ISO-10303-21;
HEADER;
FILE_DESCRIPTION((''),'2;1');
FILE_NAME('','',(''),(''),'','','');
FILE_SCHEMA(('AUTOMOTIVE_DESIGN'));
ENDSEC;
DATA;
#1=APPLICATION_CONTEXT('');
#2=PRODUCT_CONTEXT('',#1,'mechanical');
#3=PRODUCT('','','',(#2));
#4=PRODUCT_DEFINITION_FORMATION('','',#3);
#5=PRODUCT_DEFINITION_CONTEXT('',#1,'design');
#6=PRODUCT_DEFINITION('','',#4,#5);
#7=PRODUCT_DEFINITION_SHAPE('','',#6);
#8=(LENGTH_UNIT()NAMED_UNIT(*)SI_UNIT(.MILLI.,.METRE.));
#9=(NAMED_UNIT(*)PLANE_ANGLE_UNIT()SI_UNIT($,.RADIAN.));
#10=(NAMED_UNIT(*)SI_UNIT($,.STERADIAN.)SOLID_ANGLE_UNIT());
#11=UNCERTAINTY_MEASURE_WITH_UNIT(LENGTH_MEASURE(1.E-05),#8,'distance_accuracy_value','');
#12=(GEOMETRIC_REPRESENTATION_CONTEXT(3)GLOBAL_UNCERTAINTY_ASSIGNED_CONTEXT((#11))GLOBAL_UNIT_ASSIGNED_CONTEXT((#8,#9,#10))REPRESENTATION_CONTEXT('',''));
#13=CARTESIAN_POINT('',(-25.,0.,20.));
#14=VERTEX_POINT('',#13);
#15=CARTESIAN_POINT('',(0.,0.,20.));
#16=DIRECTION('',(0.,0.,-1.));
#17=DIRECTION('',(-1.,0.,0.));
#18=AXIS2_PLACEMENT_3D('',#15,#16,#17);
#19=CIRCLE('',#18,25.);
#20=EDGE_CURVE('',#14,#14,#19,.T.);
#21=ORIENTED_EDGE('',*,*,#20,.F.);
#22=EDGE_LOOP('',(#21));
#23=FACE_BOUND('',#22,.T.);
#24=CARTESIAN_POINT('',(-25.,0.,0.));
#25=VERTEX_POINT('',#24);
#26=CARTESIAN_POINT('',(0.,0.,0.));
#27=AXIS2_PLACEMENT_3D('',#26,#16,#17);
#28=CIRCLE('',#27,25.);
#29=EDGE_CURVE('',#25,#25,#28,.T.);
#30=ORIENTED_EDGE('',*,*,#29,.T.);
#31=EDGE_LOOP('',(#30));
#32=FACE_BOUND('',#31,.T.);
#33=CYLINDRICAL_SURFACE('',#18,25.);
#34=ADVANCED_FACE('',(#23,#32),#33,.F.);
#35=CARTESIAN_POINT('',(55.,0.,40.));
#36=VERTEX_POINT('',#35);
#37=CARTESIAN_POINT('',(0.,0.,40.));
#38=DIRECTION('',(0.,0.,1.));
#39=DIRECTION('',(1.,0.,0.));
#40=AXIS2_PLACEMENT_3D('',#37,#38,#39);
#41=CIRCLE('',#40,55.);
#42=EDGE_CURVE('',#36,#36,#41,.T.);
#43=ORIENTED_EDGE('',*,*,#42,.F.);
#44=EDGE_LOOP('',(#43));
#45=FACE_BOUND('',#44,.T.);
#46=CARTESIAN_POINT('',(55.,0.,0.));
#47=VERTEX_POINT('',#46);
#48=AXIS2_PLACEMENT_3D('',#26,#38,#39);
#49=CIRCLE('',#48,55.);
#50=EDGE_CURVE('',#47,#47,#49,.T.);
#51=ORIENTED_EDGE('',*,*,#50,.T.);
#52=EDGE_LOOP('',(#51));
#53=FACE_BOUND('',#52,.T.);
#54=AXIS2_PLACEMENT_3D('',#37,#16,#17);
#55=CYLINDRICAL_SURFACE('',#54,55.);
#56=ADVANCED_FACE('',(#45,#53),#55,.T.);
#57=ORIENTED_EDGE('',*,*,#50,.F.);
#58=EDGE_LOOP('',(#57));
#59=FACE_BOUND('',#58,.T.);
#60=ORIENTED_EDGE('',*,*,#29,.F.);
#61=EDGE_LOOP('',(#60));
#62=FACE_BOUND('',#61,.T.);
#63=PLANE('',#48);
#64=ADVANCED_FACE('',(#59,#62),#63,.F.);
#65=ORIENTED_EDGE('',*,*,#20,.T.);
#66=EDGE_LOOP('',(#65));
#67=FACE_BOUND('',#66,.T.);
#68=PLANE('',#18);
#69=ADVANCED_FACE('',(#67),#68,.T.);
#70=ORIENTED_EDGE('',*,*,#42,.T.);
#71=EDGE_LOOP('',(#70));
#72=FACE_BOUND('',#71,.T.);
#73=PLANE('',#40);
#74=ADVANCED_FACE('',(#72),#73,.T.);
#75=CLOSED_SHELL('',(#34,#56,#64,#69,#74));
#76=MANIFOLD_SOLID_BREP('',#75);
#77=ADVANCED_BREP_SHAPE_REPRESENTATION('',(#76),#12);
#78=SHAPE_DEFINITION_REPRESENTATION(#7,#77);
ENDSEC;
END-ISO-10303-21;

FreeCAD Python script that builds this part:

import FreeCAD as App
import Part
import Sketcher
from FreeCAD import Vector
Q = App.Units.Quantity

doc = App.newDocument("Part")
body = doc.addObject("PartDesign::Body", "Body")

# Sketch on XY plane
sketch1 = body.newObject("Sketcher::SketchObject", "Sketch")
sketch1.AttachmentSupport = (doc.getObject("XY_Plane"), [""])
sketch1.MapMode = "FlatFace"
sketch1.addGeometry(Part.Circle(Vector(0, 0, 0), Vector(0, 0, 1), 55), False)
sketch1.addConstraint([
    Sketcher.Constraint("Coincident", 0, 3, -1, 1),
    Sketcher.Constraint("Diameter", 0, Q("110 mm")),
])
pad1 = body.newObject("PartDesign::Pad", "Pad")
pad1.Profile = sketch1
pad1.Length = 40

# Sketch on XY plane
sketch2 = body.newObject("Sketcher::SketchObject", "Sketch001")
sketch2.AttachmentSupport = (doc.getObject("XY_Plane"), [""])
sketch2.MapMode = "FlatFace"
sketch2.addGeometry(Part.Circle(Vector(0, 0, 0), Vector(0, 0, 1), 25), False)
sketch2.addConstraint([
    Sketcher.Constraint("Coincident", 0, 3, -1, 1),
    Sketcher.Constraint("Diameter", 0, Q("50 mm")),
])
pocket1 = body.newObject("PartDesign::Pocket", "Pocket")
pocket1.Profile = sketch2
pocket1.Length = 20
pocket1.Reversed = True

doc.recompute()
